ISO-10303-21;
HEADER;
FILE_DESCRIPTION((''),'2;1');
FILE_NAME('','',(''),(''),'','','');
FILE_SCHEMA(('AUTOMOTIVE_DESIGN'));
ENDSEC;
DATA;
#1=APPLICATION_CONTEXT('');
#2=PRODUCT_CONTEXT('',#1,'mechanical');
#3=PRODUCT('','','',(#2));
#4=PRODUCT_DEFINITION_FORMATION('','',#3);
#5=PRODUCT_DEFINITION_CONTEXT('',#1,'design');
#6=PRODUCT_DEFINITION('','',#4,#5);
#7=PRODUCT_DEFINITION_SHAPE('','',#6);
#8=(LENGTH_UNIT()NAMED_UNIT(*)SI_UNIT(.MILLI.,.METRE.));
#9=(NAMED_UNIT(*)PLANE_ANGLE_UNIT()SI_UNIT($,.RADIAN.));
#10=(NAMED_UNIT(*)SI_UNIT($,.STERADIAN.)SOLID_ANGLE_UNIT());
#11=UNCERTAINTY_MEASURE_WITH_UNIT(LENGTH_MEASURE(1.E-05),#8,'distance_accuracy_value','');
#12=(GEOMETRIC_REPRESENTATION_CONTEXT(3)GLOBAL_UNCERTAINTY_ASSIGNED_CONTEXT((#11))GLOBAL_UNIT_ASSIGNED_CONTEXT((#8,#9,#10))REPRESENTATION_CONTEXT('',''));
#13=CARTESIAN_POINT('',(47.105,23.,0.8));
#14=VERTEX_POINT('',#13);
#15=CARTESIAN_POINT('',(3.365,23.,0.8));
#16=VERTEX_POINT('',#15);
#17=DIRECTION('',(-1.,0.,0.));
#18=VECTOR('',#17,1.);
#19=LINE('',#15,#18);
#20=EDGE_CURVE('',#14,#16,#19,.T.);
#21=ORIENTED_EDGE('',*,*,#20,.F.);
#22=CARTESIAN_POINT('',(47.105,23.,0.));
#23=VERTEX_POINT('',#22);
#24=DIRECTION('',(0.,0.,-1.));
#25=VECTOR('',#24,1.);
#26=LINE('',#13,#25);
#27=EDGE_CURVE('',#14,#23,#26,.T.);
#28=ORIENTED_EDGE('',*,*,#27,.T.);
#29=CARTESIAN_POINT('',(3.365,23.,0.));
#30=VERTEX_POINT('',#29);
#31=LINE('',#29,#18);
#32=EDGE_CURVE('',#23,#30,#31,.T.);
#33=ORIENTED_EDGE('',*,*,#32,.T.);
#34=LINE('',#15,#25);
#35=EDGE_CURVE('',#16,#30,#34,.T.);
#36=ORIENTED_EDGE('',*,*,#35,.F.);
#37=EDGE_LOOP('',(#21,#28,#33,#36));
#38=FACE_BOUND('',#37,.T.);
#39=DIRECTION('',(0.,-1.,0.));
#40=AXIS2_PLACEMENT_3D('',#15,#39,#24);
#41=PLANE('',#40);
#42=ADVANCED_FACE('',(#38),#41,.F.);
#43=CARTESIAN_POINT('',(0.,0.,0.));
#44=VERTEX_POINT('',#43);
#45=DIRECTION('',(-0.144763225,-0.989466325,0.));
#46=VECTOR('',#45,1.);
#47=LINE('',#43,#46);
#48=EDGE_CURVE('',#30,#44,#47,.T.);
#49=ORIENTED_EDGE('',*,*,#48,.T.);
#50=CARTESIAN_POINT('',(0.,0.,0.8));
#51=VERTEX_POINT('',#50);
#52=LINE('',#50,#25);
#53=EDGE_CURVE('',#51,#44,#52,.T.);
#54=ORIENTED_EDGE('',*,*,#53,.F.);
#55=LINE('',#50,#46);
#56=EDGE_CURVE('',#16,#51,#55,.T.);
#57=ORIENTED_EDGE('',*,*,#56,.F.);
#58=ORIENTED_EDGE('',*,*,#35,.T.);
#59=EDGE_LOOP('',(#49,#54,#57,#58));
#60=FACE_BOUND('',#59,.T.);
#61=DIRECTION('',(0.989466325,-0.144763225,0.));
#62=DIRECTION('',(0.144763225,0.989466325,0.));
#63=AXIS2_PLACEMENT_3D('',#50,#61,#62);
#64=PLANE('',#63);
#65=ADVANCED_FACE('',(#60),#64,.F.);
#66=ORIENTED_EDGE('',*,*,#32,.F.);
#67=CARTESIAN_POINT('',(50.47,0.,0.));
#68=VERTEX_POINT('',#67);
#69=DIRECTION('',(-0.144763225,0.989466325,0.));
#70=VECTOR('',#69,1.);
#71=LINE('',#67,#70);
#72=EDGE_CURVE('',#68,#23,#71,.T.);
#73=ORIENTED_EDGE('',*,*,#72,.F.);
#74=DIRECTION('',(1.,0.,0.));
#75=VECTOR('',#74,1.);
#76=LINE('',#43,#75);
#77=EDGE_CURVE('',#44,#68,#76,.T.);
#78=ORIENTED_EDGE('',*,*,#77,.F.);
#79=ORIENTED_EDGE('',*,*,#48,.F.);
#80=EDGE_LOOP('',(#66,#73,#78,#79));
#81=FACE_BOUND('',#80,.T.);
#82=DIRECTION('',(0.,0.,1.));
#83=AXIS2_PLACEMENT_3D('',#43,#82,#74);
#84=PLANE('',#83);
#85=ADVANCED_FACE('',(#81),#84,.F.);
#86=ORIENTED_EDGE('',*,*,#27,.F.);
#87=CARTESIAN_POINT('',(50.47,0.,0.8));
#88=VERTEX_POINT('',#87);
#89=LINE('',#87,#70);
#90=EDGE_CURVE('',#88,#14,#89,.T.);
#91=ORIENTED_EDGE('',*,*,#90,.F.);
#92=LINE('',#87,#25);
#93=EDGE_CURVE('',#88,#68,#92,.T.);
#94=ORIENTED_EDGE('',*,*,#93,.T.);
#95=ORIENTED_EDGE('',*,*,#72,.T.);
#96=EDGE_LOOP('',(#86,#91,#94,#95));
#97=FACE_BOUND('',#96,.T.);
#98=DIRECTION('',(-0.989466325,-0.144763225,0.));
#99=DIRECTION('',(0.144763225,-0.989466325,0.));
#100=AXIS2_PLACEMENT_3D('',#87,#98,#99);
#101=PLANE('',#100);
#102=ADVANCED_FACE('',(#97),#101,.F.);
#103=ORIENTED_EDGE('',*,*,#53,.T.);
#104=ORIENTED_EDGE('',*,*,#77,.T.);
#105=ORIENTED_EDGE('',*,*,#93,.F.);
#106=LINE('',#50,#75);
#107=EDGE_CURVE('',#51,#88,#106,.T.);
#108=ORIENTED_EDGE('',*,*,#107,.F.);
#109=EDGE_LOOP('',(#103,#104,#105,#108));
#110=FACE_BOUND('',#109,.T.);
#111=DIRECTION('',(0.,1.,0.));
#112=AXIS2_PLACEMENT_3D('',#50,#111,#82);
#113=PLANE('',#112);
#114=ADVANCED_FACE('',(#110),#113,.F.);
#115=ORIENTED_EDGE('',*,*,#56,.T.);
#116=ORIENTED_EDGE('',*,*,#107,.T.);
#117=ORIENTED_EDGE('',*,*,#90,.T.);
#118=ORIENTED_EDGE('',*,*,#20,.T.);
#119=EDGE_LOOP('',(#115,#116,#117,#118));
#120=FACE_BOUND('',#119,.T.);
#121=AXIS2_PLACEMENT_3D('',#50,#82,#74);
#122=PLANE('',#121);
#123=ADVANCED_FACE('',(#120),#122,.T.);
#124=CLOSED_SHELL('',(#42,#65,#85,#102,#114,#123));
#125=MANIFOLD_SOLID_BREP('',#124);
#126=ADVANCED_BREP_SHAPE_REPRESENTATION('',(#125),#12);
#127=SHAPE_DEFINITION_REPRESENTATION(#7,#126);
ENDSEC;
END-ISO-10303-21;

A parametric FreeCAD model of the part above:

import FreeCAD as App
import Part
import Sketcher

V = App.Vector
Q = App.Units.Quantity


def add_polygon(sketch, points):
    """Adds a closed chain of lines whose ends are joined by coincident constraints."""
    first, n = sketch.GeometryCount, len(points)
    for a, b in zip(points, points[1:] + points[:1]):
        sketch.addGeometry(Part.LineSegment(App.Vector(*a, 0), App.Vector(*b, 0)), False)
    for i in range(n):
        sketch.addConstraint(Sketcher.Constraint("Coincident", first + i, 2, first + (i + 1) % n, 1))

doc = App.newDocument("Part")
body = doc.addObject("PartDesign::Body", "Body")

sketch1 = body.newObject("Sketcher::SketchObject", "Sketch")
sketch1.AttachmentSupport = (doc.getObject("XY_Plane"), [""])
sketch1.MapMode = "FlatFace"
add_polygon(sketch1, [(3, 23), (0, 0), (50, 0), (47, 23)])
sketch1.addConstraint([
    Sketcher.Constraint("Horizontal", 1),
    Sketcher.Constraint("Horizontal", 3),
    Sketcher.Constraint("Coincident", 0, 2, -1, 1),
    Sketcher.Constraint("Equal", 0, 2),
    Sketcher.Constraint("DistanceY", -1, 1, 2, 2, Q("23 mm")),
    Sketcher.Constraint("DistanceX", 1, 1, 1, 2, Q("50.47 mm")),
    Sketcher.Constraint("DistanceX", 3, 2, 3, 1, Q("43.74 mm")),
])
pad1 = body.newObject("PartDesign::Pad", "Pad")
pad1.Profile = sketch1
pad1.Length = 0.8

doc.recompute()
